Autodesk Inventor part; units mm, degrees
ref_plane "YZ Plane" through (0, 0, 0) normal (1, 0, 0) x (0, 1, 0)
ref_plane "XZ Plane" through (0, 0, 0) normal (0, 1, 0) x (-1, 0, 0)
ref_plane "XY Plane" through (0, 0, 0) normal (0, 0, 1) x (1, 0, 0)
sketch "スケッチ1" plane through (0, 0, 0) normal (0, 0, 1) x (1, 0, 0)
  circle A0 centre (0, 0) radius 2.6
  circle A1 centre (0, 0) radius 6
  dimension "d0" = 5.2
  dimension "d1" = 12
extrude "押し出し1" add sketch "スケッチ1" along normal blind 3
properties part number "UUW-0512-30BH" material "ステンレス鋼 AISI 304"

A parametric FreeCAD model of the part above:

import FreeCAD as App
import Part
import Sketcher

V = App.Vector

doc = App.newDocument("Part")
body = doc.addObject("PartDesign::Body", "Body")

sketch1 = body.newObject("Sketcher::SketchObject", "Sketch")
sketch1.AttachmentSupport = (doc.getObject("XY_Plane"), [""])
sketch1.MapMode = "FlatFace"
sketch1.addGeometry(Part.Circle(V(0, 0, 0), V(0, 0, 1), 6), False)
sketch1.addGeometry(Part.Circle(V(0, 0, 0), V(0, 0, 1), 2.6), False)
sketch1.addConstraint(Sketcher.Constraint("Coincident", 0, 3, -1, 1))
sketch1.addConstraint(Sketcher.Constraint("Coincident", 1, 3, -1, 1))
sketch1.addConstraint(Sketcher.Constraint("Diameter", 0, 12.0))
sketch1.addConstraint(Sketcher.Constraint("Diameter", 1, 5.2))
pad1 = body.newObject("PartDesign::Pad", "Pad")
pad1.Profile = sketch1
pad1.Length = 3

doc.recompute()
